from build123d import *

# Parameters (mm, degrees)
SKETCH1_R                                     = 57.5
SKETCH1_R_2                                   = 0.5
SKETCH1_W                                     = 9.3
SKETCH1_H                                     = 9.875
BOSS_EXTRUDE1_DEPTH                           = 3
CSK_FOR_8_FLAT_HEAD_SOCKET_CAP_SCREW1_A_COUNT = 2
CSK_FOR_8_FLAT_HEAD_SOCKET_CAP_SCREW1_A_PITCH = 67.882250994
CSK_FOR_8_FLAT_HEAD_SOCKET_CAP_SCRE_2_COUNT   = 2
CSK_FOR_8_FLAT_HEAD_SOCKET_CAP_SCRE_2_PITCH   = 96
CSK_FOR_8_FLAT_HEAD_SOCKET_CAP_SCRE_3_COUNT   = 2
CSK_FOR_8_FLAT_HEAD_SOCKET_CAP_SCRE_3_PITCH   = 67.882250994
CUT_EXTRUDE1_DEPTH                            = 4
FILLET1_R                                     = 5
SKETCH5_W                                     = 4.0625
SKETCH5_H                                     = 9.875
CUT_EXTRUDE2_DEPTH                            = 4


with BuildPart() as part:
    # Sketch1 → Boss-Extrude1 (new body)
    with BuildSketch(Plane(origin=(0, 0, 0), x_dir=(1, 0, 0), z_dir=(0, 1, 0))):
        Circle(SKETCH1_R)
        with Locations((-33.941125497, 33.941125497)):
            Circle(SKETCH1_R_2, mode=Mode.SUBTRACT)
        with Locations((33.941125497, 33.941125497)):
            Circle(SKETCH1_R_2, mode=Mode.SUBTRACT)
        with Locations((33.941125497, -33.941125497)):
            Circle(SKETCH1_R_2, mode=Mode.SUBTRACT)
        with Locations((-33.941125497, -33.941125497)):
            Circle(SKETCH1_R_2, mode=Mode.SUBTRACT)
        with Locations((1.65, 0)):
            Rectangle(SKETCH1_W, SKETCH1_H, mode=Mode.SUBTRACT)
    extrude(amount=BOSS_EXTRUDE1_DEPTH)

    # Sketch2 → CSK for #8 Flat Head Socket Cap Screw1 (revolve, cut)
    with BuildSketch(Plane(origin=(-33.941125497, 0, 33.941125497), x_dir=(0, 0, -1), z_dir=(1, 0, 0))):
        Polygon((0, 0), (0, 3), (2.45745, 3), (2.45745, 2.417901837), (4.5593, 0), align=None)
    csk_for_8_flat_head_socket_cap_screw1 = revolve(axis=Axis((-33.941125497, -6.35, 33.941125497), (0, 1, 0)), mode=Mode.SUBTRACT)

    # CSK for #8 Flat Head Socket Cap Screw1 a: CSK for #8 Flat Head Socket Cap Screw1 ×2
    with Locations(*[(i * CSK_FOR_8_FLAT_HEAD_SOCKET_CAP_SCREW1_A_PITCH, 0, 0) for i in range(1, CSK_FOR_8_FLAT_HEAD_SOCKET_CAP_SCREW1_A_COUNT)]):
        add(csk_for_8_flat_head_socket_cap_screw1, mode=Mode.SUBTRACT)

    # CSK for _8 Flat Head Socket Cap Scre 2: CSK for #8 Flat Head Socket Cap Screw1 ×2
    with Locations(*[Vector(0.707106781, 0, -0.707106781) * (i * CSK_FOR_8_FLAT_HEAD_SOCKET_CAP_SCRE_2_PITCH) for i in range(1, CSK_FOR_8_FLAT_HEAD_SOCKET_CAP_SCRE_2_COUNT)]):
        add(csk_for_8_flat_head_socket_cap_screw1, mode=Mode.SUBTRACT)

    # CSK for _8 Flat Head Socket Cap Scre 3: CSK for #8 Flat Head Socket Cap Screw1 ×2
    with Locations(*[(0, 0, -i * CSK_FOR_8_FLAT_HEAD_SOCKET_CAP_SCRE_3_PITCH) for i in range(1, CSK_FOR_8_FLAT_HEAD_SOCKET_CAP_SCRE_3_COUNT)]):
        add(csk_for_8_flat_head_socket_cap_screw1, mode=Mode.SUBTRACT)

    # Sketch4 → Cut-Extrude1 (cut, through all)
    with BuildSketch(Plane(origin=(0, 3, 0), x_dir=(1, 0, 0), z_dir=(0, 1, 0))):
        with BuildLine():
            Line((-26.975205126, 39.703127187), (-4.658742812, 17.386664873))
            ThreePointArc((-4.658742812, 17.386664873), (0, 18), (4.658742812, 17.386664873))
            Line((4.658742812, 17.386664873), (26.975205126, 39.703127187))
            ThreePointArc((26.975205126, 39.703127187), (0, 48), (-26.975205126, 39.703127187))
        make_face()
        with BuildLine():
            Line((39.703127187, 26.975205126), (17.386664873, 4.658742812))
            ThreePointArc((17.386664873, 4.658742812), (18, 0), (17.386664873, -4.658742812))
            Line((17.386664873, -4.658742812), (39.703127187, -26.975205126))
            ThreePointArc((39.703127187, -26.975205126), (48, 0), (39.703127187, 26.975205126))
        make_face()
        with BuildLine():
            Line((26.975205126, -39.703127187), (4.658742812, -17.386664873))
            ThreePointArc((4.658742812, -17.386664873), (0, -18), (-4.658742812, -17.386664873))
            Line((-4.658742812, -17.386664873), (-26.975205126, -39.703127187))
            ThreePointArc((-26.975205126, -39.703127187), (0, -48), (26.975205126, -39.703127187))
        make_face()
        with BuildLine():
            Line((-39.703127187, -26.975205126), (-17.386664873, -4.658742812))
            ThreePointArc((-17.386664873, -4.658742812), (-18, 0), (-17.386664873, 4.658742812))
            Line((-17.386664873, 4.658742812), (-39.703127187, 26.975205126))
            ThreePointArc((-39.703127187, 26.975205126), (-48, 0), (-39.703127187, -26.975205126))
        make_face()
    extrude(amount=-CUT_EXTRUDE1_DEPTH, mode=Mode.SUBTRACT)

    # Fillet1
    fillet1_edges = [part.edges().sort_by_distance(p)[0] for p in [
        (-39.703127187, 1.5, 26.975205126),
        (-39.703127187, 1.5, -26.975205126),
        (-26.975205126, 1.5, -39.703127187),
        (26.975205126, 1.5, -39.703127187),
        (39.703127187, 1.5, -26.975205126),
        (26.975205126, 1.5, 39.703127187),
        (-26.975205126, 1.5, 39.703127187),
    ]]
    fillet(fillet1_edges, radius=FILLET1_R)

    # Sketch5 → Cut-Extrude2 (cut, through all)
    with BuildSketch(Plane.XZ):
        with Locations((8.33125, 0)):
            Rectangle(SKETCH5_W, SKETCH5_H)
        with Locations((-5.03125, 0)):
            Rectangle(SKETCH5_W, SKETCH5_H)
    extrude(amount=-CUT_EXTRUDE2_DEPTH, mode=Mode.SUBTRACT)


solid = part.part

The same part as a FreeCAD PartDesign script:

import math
import FreeCAD as App
import Part
import Sketcher
from FreeCAD import Vector
Q = App.Units.Quantity


def edges_at(feature, points):
    """Names of the edges that pass closest to the given points."""
    edges = feature.Shape.Edges
    near = lambda p: min(range(len(edges)), key=lambda i: edges[i].distToShape(Part.Vertex(*p))[0])
    return sorted({f"Edge{near(p) + 1}" for p in points})

doc = App.newDocument("Part")
body = doc.addObject("PartDesign::Body", "Body")

# Sketch on XZ plane
sketch1 = body.newObject("Sketcher::SketchObject", "Sketch")
sketch1.AttachmentSupport = (doc.getObject("XZ_Plane"), [""])
sketch1.MapMode = "FlatFace"
sketch1.addGeometry(Part.Circle(Vector(0, 0, 0), Vector(0, 0, 1), 57.5), False)
sketch1.addGeometry(Part.Circle(Vector(-33.9, 33.9, 0), Vector(0, 0, 1), 0.5), False)
sketch1.addGeometry(Part.Circle(Vector(33.9, 33.9, 0), Vector(0, 0, 1), 0.5), False)
sketch1.addGeometry(Part.Circle(Vector(-33.9, -33.9, 0), Vector(0, 0, 1), 0.5), False)
sketch1.addGeometry(Part.LineSegment(Vector(6.3, 4.9, 0), Vector(-3, 4.9, 0)), False)
sketch1.addGeometry(Part.LineSegment(Vector(-3, 4.9, 0), Vector(-3, -4.9, 0)), False)
sketch1.addGeometry(Part.LineSegment(Vector(-3, -4.9, 0), Vector(6.3, -4.9, 0)), False)
sketch1.addGeometry(Part.LineSegment(Vector(6.3, -4.9, 0), Vector(6.3, 4.9, 0)), False)
sketch1.addGeometry(Part.Circle(Vector(33.9, -33.9, 0), Vector(0, 0, 1), 0.5), False)
sketch1.addConstraint(Sketcher.Constraint("Coincident", 4, 2, 5, 1))
sketch1.addConstraint(Sketcher.Constraint("Coincident", 5, 2, 6, 1))
sketch1.addConstraint(Sketcher.Constraint("Coincident", 6, 2, 7, 1))
sketch1.addConstraint(Sketcher.Constraint("Coincident", 7, 2, 4, 1))
sketch1.addConstraint(Sketcher.Constraint("Horizontal", 4))
sketch1.addConstraint(Sketcher.Constraint("Vertical", 5))
sketch1.addConstraint(Sketcher.Constraint("Horizontal", 6))
sketch1.addConstraint(Sketcher.Constraint("Vertical", 7))
sketch1.addConstraint(Sketcher.Constraint("Coincident", 0, 3, -1, 1))
sketch1.addConstraint(Sketcher.Constraint("Equal", 1, 2))
sketch1.addConstraint(Sketcher.Constraint("Equal", 2, 3))
sketch1.addConstraint(Sketcher.Constraint("Equal", 3, 8))
sketch1.addConstraint(Sketcher.Constraint("Symmetric", 2, 3, 3, 3, -1, 1))
sketch1.addConstraint(Sketcher.Constraint("Symmetric", 1, 3, 8, 3, -1, 1))
sketch1.addConstraint(Sketcher.Constraint("Symmetric", 1, 3, 2, 3, -2))
sketch1.addConstraint(Sketcher.Constraint("Diameter", 0, Q("115 mm")))
sketch1.addConstraint(Sketcher.Constraint("Diameter", 1, Q("1 mm")))
sketch1.addConstraint(Sketcher.Constraint("DistanceX", 4, 2, 4, 1, Q("9.3 mm")))
sketch1.addConstraint(Sketcher.Constraint("DistanceX", 4, 2, -1, 1, Q("3 mm")))
sketch1.addConstraint(Sketcher.Constraint("DistanceY", 5, 2, 5, 1, Q("9.875 mm")))
sketch1.addConstraint(Sketcher.Constraint("DistanceY", -1, 1, 4, 2, Q("4.9375 mm")))
sketch1.addConstraint(Sketcher.Constraint("DistanceX", 1, 3, 2, 3, Q("67.882251 mm")))
sketch1.addConstraint(Sketcher.Constraint("DistanceY", 3, 3, 1, 3, Q("67.882251 mm")))
pad1 = body.newObject("PartDesign::Pad", "Pad")
pad1.Profile = sketch1
pad1.Length = 3
pad1.Reversed = True

# Sketch on YZ plane
sketch2 = body.newObject("Sketcher::SketchObject", "Sketch001")
sketch2.AttachmentSupport = (doc.getObject("YZ_Plane"), [""])
sketch2.MapMode = "FlatFace"
sketch2.AttachmentOffset = App.Placement(Vector(0, 0, -33.941125), App.Rotation())
sketch2.addGeometry(Part.LineSegment(Vector(3, 33.9, 0), Vector(0, 33.9, 0)), False)
sketch2.addGeometry(Part.LineSegment(Vector(0, 33.9, 0), Vector(0, 29.4, 0)), False)
sketch2.addGeometry(Part.LineSegment(Vector(0, 29.4, 0), Vector(2.4, 31.5, 0)), False)
sketch2.addGeometry(Part.LineSegment(Vector(2.4, 31.5, 0), Vector(3, 31.5, 0)), False)
sketch2.addGeometry(Part.LineSegment(Vector(3, 31.5, 0), Vector(3, 33.9, 0)), False)
sketch2.addGeometry(Part.LineSegment(Vector(0, 33.9, 0), Vector(3, 33.9, 0)), True)  # axis
sketch2.addConstraint(Sketcher.Constraint("Coincident", 0, 2, 1, 1))
sketch2.addConstraint(Sketcher.Constraint("Coincident", 1, 2, 2, 1))
sketch2.addConstraint(Sketcher.Constraint("Coincident", 2, 2, 3, 1))
sketch2.addConstraint(Sketcher.Constraint("Coincident", 3, 2, 4, 1))
sketch2.addConstraint(Sketcher.Constraint("Coincident", 4, 2, 0, 1))
sketch2.addConstraint(Sketcher.Constraint("Horizontal", 0))
sketch2.addConstraint(Sketcher.Constraint("Vertical", 1))
sketch2.addConstraint(Sketcher.Constraint("Horizontal", 3))
sketch2.addConstraint(Sketcher.Constraint("Vertical", 4))
sketch2.addConstraint(Sketcher.Constraint("Horizontal", 5))
sketch2.addConstraint(Sketcher.Constraint("Coincident", 5, 1, 0, 2))
sketch2.addConstraint(Sketcher.Constraint("PointOnObject", 0, 2, -2))
sketch2.addConstraint(Sketcher.Constraint("Vertical", 3, 2, 5, 2))
sketch2.addConstraint(Sketcher.Constraint("DistanceX", 0, 2, 0, 1, Q("3 mm")))
sketch2.addConstraint(Sketcher.Constraint("Angle", 2, Q("41 deg")))
sketch2.addConstraint(Sketcher.Constraint("DistanceX", 3, 1, 3, 2, Q("0.582098 mm")))
sketch2.addConstraint(Sketcher.Constraint("DistanceY", 1, 2, 1, 1, Q("4.5593 mm")))
sketch2.addConstraint(Sketcher.Constraint("DistanceY", -1, 1, 0, 2, Q("33.941125 mm")))
groove = body.newObject("PartDesign::Groove", "Groove")
groove.Profile = sketch2
groove.ReferenceAxis = (sketch2, ["Axis0"])
groove.Angle = 360
doc.recompute()

linearpattern = body.newObject("PartDesign::LinearPattern", "LinearPattern")
linearpattern.Originals = [groove]
linearpattern.Direction = (doc.getObject("X_Axis"), [""])
linearpattern.Mode = "offset"
linearpattern.Offset = 67.882251
linearpattern.Occurrences = 2
body.Tip = linearpattern
doc.recompute()

datumline = body.newObject("PartDesign::Line", "DatumLine")
datumline.Placement = App.Placement(Vector(0, 0, 0), App.Rotation(Vector(0, 0, 1), Vector(0.707106781, 0, -0.707106781)))
linearpattern2 = body.newObject("PartDesign::LinearPattern", "LinearPattern001")
linearpattern2.Originals = [groove]
linearpattern2.Direction = (datumline, [""])
linearpattern2.Mode = "offset"
linearpattern2.Offset = 96
linearpattern2.Occurrences = 2
body.Tip = linearpattern2
doc.recompute()

linearpattern3 = body.newObject("PartDesign::LinearPattern", "LinearPattern002")
linearpattern3.Originals = [groove]
linearpattern3.Direction = (doc.getObject("Z_Axis"), [""])
linearpattern3.Mode = "offset"
linearpattern3.Offset = 67.882251
linearpattern3.Occurrences = 2
linearpattern3.Reversed = True
body.Tip = linearpattern3

# Sketch on XZ plane
sketch3 = body.newObject("Sketcher::SketchObject", "Sketch002")
sketch3.AttachmentSupport = (doc.getObject("XZ_Plane"), [""])
sketch3.MapMode = "FlatFace"
sketch3.AttachmentOffset = App.Placement(Vector(0, 0, -3), App.Rotation())
sketch3.addGeometry(Part.LineSegment(Vector(-27, -40, 0), Vector(-5, -17, 0)), False)
sketch3.addGeometry(Part.ArcOfCircle(Part.Circle(Vector(0, 0, 0), Vector(0, 0, 1), 18), math.radians(-105), math.radians(-75)), False)
sketch3.addGeometry(Part.LineSegment(Vector(5, -17, 0), Vector(27, -40, 0)), False)
sketch3.addGeometry(Part.ArcOfCircle(Part.Circle(Vector(0, 0, 0), Vector(0, 0, 1), 48), math.radians(-124), math.radians(-56)), False)
sketch3.addGeometry(Part.LineSegment(Vector(40, -27, 0), Vector(17, -5, 0)), False)
sketch3.addGeometry(Part.ArcOfCircle(Part.Circle(Vector(0, 0, 0), Vector(0, 0, 1), 18), math.radians(-15), math.radians(15)), False)
sketch3.addGeometry(Part.LineSegment(Vector(17, 5, 0), Vector(40, 27, 0)), False)
sketch3.addGeometry(Part.ArcOfCircle(Part.Circle(Vector(0, 0, 0), Vector(0, 0, 1), 48), math.radians(-34), math.radians(34)), False)
sketch3.addGeometry(Part.LineSegment(Vector(27, 40, 0), Vector(5, 17, 0)), False)
sketch3.addGeometry(Part.ArcOfCircle(Part.Circle(Vector(0, 0, 0), Vector(0, 0, 1), 18), math.radians(75), math.radians(105)), False)
sketch3.addGeometry(Part.LineSegment(Vector(-5, 17, 0), Vector(-27, 40, 0)), False)
sketch3.addGeometry(Part.ArcOfCircle(Part.Circle(Vector(0, 0, 0), Vector(0, 0, 1), 48), math.radians(56), math.radians(124)), False)
sketch3.addGeometry(Part.LineSegment(Vector(-40, 27, 0), Vector(-17, 5, 0)), False)
sketch3.addGeometry(Part.ArcOfCircle(Part.Circle(Vector(0, 0, 0), Vector(0, 0, 1), 18), math.radians(165), math.radians(195)), False)
sketch3.addGeometry(Part.LineSegment(Vector(-17, -5, 0), Vector(-40, -27, 0)), False)
sketch3.addGeometry(Part.ArcOfCircle(Part.Circle(Vector(0, 0, 0), Vector(0, 0, 1), 48), math.radians(146), math.radians(214)), False)
sketch3.addConstraint(Sketcher.Constraint("Coincident", 0, 2, 1, 1))
sketch3.addConstraint(Sketcher.Constraint("Coincident", 1, 2, 2, 1))
sketch3.addConstraint(Sketcher.Constraint("Coincident", 2, 2, 3, 2))
sketch3.addConstraint(Sketcher.Constraint("Coincident", 3, 1, 0, 1))
sketch3.addConstraint(Sketcher.Constraint("Coincident", 4, 2, 5, 1))
sketch3.addConstraint(Sketcher.Constraint("Coincident", 5, 2, 6, 1))
sketch3.addConstraint(Sketcher.Constraint("Coincident", 6, 2, 7, 2))
sketch3.addConstraint(Sketcher.Constraint("Coincident", 7, 1, 4, 1))
sketch3.addConstraint(Sketcher.Constraint("Coincident", 8, 2, 9, 1))
sketch3.addConstraint(Sketcher.Constraint("Coincident", 9, 2, 10, 1))
sketch3.addConstraint(Sketcher.Constraint("Coincident", 10, 2, 11, 2))
sketch3.addConstraint(Sketcher.Constraint("Coincident", 11, 1, 8, 1))
sketch3.addConstraint(Sketcher.Constraint("Coincident", 12, 2, 13, 1))
sketch3.addConstraint(Sketcher.Constraint("Coincident", 13, 2, 14, 1))
sketch3.addConstraint(Sketcher.Constraint("Coincident", 14, 2, 15, 2))
sketch3.addConstraint(Sketcher.Constraint("Coincident", 15, 1, 12, 1))
sketch3.addConstraint(Sketcher.Constraint("Coincident", 1, 3, -1, 1))
sketch3.addConstraint(Sketcher.Constraint("Coincident", 3, 3, -1, 1))
sketch3.addConstraint(Sketcher.Constraint("Coincident", 5, 3, -1, 1))
sketch3.addConstraint(Sketcher.Constraint("Coincident", 7, 3, -1, 1))
sketch3.addConstraint(Sketcher.Constraint("Coincident", 9, 3, -1, 1))
sketch3.addConstraint(Sketcher.Constraint("Coincident", 11, 3, -1, 1))
sketch3.addConstraint(Sketcher.Constraint("Coincident", 13, 3, -1, 1))
sketch3.addConstraint(Sketcher.Constraint("Coincident", 15, 3, -1, 1))
sketch3.addConstraint(Sketcher.Constraint("Equal", 1, 5))
sketch3.addConstraint(Sketcher.Constraint("Equal", 3, 7))
sketch3.addConstraint(Sketcher.Constraint("Equal", 5, 9))
sketch3.addConstraint(Sketcher.Constraint("Equal", 7, 11))
sketch3.addConstraint(Sketcher.Constraint("Equal", 9, 13))
sketch3.addConstraint(Sketcher.Constraint("Equal", 11, 15))
sketch3.addConstraint(Sketcher.Constraint("Perpendicular", 0, 2))
sketch3.addConstraint(Sketcher.Constraint("Parallel", 2, 4))
sketch3.addConstraint(Sketcher.Constraint("Perpendicular", 4, 6))
sketch3.addConstraint(Sketcher.Constraint("Parallel", 6, 8))
sketch3.addConstraint(Sketcher.Constraint("Perpendicular", 8, 10))
sketch3.addConstraint(Sketcher.Constraint("Parallel", 10, 12))
sketch3.addConstraint(Sketcher.Constraint("Perpendicular", 12, 14))
sketch3.addConstraint(Sketcher.Constraint("Horizontal", 0, 2, 1, 2))
sketch3.addConstraint(Sketcher.Constraint("Horizontal", 2, 2, 3, 1))
sketch3.addConstraint(Sketcher.Constraint("Horizontal", 8, 2, 9, 2))
sketch3.addConstraint(Sketcher.Constraint("Horizontal", 5, 2, 12, 2))
sketch3.addConstraint(Sketcher.Constraint("Horizontal", 4, 2, 13, 2))
sketch3.addConstraint(Sketcher.Constraint("Vertical", 4, 2, 5, 2))
sketch3.addConstraint(Sketcher.Constraint("Vertical", 1, 2, 8, 2))
sketch3.addConstraint(Sketcher.Constraint("Equal", 2, 4))
sketch3.addConstraint(Sketcher.Constraint("Radius", 1, Q("18 mm")))
sketch3.addConstraint(Sketcher.Constraint("Radius", 3, Q("48 mm")))
sketch3.addConstraint(Sketcher.Constraint("DistanceY", 7, 1, 1, 2, Q("9.58854 mm")))
pocket1 = body.newObject("PartDesign::Pocket", "Pocket")
pocket1.Profile = sketch3
pocket1.Type = "ThroughAll"
pocket1.Reversed = True
doc.recompute()

fillet = body.newObject("PartDesign::Fillet", "Fillet")
fillet.Base = (pocket1, edges_at(pocket1, [
    (-39.703, 1.5, 26.975),
    (-39.703, 1.5, -26.975),
    (-26.975, 1.5, -39.703),
    (26.975, 1.5, -39.703),
    (39.703, 1.5, -26.975),
    (26.975, 1.5, 39.703),
    (-26.975, 1.5, 39.703),
]))
fillet.Radius = 5

# Sketch on XZ plane
sketch4 = body.newObject("Sketcher::SketchObject", "Sketch003")
sketch4.AttachmentSupport = (doc.getObject("XZ_Plane"), [""])
sketch4.MapMode = "FlatFace"
sketch4.addGeometry(Part.LineSegment(Vector(6.3, 4.9, 0), Vector(6.3, -4.9, 0)), False)
sketch4.addGeometry(Part.LineSegment(Vector(6.3, -4.9, 0), Vector(10.4, -4.9, 0)), False)
sketch4.addGeometry(Part.LineSegment(Vector(10.4, -4.9, 0), Vector(10.4, 4.9, 0)), False)
sketch4.addGeometry(Part.LineSegment(Vector(10.4, 4.9, 0), Vector(6.3, 4.9, 0)), False)
sketch4.addGeometry(Part.LineSegment(Vector(-7.1, 4.9, 0), Vector(-7.1, -4.9, 0)), False)
sketch4.addGeometry(Part.LineSegment(Vector(-7.1, -4.9, 0), Vector(-3, -4.9, 0)), False)
sketch4.addGeometry(Part.LineSegment(Vector(-3, -4.9, 0), Vector(-3, 4.9, 0)), False)
sketch4.addGeometry(Part.LineSegment(Vector(-3, 4.9, 0), Vector(-7.1, 4.9, 0)), False)
sketch4.addConstraint(Sketcher.Constraint("Coincident", 0, 2, 1, 1))
sketch4.addConstraint(Sketcher.Constraint("Coincident", 1, 2, 2, 1))
sketch4.addConstraint(Sketcher.Constraint("Coincident", 2, 2, 3, 1))
sketch4.addConstraint(Sketcher.Constraint("Coincident", 3, 2, 0, 1))
sketch4.addConstraint(Sketcher.Constraint("Coincident", 4, 2, 5, 1))
sketch4.addConstraint(Sketcher.Constraint("Coincident", 5, 2, 6, 1))
sketch4.addConstraint(Sketcher.Constraint("Coincident", 6, 2, 7, 1))
sketch4.addConstraint(Sketcher.Constraint("Coincident", 7, 2, 4, 1))
sketch4.addConstraint(Sketcher.Constraint("Vertical", 0))
sketch4.addConstraint(Sketcher.Constraint("Horizontal", 1))
sketch4.addConstraint(Sketcher.Constraint("Vertical", 2))
sketch4.addConstraint(Sketcher.Constraint("Horizontal", 3))
sketch4.addConstraint(Sketcher.Constraint("Vertical", 4))
sketch4.addConstraint(Sketcher.Constraint("Horizontal", 5))
sketch4.addConstraint(Sketcher.Constraint("Vertical", 6))
sketch4.addConstraint(Sketcher.Constraint("Horizontal", 7))
sketch4.addConstraint(Sketcher.Constraint("Horizontal", 1, 2, 4, 2))
sketch4.addConstraint(Sketcher.Constraint("Horizontal", 3, 2, 6, 2))
sketch4.addConstraint(Sketcher.Constraint("Equal", 3, 5))
sketch4.addConstraint(Sketcher.Constraint("DistanceX", 5, 2, -1, 1, Q("3 mm")))
sketch4.addConstraint(Sketcher.Constraint("DistanceX", -1, 1, 0, 2, Q("6.3 mm")))
sketch4.addConstraint(Sketcher.Constraint("DistanceY", 0, 2, 0, 1, Q("9.875 mm")))
sketch4.addConstraint(Sketcher.Constraint("DistanceX", 1, 1, 1, 2, Q("4.0625 mm")))
sketch4.addConstraint(Sketcher.Constraint("DistanceY", 0, 2, -1, 1, Q("4.9375 mm")))
pocket2 = body.newObject("PartDesign::Pocket", "Pocket001")
pocket2.Profile = sketch4
pocket2.Type = "ThroughAll"

doc.recompute()
